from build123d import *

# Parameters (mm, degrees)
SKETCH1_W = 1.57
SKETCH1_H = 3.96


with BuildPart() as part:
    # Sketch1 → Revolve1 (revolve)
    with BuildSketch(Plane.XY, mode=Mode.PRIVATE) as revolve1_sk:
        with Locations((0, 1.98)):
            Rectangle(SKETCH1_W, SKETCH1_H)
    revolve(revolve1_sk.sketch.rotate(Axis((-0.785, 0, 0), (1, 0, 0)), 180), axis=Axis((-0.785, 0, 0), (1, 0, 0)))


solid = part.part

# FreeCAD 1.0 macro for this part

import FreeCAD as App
import Part
import Sketcher
from FreeCAD import Vector

doc = App.newDocument("Part")
body = doc.addObject("PartDesign::Body", "Body")

# Sketch on XY plane
sketch1 = doc.addObject("Sketcher::SketchObject", "Sketch")
body.addObject(sketch1)
sketch1.AttachmentSupport = (doc.XY_Plane, [""])
sketch1.MapMode = "FlatFace"
sketch1.addGeometry([
    Part.LineSegment(Vector(-0.8, 4, 0), Vector(-0.8, 0, 0)),
    Part.LineSegment(Vector(-0.8, 0, 0), Vector(0.8, 0, 0)),
    Part.LineSegment(Vector(0.8, 0, 0), Vector(0.8, 4, 0)),
    Part.LineSegment(Vector(0.8, 4, 0), Vector(-0.8, 4, 0)),
], False)
sketch1.addConstraint([
    Sketcher.Constraint("Coincident", 0, 2, 1, 1),
    Sketcher.Constraint("Coincident", 1, 2, 2, 1),
    Sketcher.Constraint("Coincident", 2, 2, 3, 1),
    Sketcher.Constraint("Coincident", 3, 2, 0, 1),
    Sketcher.Constraint("Vertical", 0),
    Sketcher.Constraint("Horizontal", 1),
    Sketcher.Constraint("Vertical", 2),
    Sketcher.Constraint("Horizontal", 3),
    Sketcher.Constraint("Symmetric", 0, 2, 1, 2, -1, 1),
    Sketcher.Constraint("DistanceX", 1, 1, 1, 2, 1.57),
    Sketcher.Constraint("DistanceY", 0, 2, 0, 1, 3.96),
])
revolution = doc.addObject("PartDesign::Revolution", "Revolution")
body.addObject(revolution)
revolution.Profile = sketch1
revolution.ReferenceAxis = (sketch1, ["H_Axis"])
revolution.Angle = 360

doc.recompute()
